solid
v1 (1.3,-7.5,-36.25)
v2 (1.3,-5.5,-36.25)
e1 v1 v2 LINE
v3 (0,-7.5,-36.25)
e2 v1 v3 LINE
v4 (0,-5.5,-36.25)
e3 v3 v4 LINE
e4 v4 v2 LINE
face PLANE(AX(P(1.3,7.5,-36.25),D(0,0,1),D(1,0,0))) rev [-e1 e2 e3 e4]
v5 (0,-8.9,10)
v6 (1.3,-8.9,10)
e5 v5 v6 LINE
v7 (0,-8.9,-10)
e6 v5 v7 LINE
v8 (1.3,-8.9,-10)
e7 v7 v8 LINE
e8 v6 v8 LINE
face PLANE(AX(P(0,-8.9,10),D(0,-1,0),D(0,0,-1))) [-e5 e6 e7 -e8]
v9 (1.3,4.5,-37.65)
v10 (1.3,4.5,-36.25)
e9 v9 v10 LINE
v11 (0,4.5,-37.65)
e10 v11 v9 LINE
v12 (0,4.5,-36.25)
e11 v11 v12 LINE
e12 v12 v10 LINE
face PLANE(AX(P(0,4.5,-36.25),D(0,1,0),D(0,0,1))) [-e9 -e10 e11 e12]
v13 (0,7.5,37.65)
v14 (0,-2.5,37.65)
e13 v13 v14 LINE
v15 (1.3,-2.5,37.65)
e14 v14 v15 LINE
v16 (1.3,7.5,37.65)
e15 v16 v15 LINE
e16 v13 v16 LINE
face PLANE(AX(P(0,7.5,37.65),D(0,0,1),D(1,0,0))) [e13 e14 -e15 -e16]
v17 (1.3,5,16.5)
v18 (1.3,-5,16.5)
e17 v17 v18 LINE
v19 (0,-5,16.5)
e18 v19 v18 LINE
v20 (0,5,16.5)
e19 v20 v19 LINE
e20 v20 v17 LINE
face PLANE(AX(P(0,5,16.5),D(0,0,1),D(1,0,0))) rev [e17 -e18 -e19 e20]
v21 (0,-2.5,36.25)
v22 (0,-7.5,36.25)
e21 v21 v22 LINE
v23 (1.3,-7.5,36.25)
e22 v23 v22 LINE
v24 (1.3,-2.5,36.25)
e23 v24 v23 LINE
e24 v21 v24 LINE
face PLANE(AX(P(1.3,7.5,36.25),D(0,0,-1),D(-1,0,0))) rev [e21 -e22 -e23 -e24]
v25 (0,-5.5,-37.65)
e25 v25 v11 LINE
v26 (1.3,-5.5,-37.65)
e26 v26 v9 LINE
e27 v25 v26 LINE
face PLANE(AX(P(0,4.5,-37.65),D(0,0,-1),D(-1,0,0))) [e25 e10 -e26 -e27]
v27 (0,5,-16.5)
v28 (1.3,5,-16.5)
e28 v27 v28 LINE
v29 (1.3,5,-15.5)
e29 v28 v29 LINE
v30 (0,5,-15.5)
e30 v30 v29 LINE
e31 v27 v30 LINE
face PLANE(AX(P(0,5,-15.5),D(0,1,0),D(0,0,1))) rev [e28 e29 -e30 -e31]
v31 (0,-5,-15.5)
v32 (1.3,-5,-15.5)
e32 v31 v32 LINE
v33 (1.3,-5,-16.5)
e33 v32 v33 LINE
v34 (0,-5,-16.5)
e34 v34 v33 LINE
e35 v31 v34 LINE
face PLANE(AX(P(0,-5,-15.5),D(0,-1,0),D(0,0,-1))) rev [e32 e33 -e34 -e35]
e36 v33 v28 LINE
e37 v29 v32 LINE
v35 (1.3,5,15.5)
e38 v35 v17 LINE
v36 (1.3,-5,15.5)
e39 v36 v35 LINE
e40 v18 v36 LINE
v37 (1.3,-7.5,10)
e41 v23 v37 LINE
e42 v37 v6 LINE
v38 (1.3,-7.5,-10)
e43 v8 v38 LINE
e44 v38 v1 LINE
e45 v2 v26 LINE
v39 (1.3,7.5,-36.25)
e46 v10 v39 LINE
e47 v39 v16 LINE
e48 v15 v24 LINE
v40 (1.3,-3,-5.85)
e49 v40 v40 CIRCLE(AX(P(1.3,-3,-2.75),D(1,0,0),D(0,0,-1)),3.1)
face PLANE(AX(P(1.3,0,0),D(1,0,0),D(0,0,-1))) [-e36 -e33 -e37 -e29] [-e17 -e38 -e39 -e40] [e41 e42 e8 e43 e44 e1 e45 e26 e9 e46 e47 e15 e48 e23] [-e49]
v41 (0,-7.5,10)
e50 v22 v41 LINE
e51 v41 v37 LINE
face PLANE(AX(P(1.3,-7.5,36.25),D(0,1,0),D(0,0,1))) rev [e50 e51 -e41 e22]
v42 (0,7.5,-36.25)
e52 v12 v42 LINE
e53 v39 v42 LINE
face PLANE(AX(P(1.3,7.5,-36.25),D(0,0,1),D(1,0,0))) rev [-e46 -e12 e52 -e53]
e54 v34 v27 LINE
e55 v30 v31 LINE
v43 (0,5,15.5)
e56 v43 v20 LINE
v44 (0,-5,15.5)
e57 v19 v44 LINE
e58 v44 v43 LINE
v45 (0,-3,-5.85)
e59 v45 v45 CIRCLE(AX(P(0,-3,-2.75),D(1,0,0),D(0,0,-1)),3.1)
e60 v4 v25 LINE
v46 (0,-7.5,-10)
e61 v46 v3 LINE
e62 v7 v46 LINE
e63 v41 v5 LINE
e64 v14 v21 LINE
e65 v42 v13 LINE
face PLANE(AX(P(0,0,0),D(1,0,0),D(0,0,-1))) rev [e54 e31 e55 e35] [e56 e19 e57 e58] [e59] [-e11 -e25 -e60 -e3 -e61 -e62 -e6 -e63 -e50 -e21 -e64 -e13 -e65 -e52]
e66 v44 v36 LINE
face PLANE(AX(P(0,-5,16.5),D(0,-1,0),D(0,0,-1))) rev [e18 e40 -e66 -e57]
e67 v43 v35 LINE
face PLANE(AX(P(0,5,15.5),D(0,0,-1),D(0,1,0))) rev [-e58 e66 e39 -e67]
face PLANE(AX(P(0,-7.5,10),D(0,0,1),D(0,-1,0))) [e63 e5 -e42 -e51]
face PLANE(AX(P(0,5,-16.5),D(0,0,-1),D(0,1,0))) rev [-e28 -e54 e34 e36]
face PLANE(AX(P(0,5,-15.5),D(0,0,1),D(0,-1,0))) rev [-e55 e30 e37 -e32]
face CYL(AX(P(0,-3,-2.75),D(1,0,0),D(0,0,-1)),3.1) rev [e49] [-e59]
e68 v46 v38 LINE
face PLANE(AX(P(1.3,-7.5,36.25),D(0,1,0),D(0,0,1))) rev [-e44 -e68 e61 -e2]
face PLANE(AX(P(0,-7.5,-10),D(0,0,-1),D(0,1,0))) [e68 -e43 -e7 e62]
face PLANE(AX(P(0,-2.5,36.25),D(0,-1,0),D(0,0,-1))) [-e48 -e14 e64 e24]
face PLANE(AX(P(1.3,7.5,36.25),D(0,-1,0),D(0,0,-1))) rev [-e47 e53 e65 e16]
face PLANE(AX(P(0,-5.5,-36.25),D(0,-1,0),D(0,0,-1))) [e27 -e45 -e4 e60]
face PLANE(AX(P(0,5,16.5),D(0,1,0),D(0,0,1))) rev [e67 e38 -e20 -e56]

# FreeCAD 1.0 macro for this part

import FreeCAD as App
import Part
import Sketcher
from FreeCAD import Vector

doc = App.newDocument("Part")
params = doc.addObject("Spreadsheet::Sheet", "Params")
for row, (alias, value) in enumerate([
    ("sketch1_width", "15 mm"),
    ("sketch1_height", "72.5 mm"),
    ("pad1_length", "1.3 mm"),
    ("sketch2_width", "10 mm"),
    ("sketch2_height", "20 mm"),
    ("sketch2_width2", "1.4 mm"),
    ("pad2_length", "1.3 mm"),
    ("sketch3_width", "10 mm"),
    ("sketch3_height", "1 mm"),
    ("sketch4_diameter", "6.2 mm"),
], start=1):
    params.set(f"A{row}", alias)
    params.set(f"B{row}", "=" + value)
    params.setAlias(f"B{row}", alias)

body = doc.addObject("PartDesign::Body", "Body")

sketch1 = body.newObject("Sketcher::SketchObject", "Sketch")
sketch1.AttachmentSupport = (doc.getObject("YZ_Plane"), [""])
sketch1.MapMode = "FlatFace"
sketch1.addGeometry(Part.LineSegment(Vector(8, 36, 0), Vector(-8, 36, 0)), False)
sketch1.addGeometry(Part.LineSegment(Vector(-8, 36, 0), Vector(-8, -36, 0)), False)
sketch1.addGeometry(Part.LineSegment(Vector(-8, -36, 0), Vector(8, -36, 0)), False)
sketch1.addGeometry(Part.LineSegment(Vector(8, -36, 0), Vector(8, 36, 0)), False)
sketch1.addConstraint(Sketcher.Constraint("Coincident", 0, 2, 1, 1))
sketch1.addConstraint(Sketcher.Constraint("Coincident", 1, 2, 2, 1))
sketch1.addConstraint(Sketcher.Constraint("Coincident", 2, 2, 3, 1))
sketch1.addConstraint(Sketcher.Constraint("Coincident", 3, 2, 0, 1))
sketch1.addConstraint(Sketcher.Constraint("Horizontal", 0))
sketch1.addConstraint(Sketcher.Constraint("Vertical", 1))
sketch1.addConstraint(Sketcher.Constraint("Horizontal", 2))
sketch1.addConstraint(Sketcher.Constraint("Vertical", 3))
sketch1.addConstraint(Sketcher.Constraint("Symmetric", 0, 2, 2, 2, -1, 1))
sketch1.addConstraint(Sketcher.Constraint("DistanceX", 0, 2, 0, 1, 15.0))
sketch1.addConstraint(Sketcher.Constraint("DistanceY", 1, 2, 1, 1, 72.5))
sketch1.setExpression("Constraints[9]", "Params.sketch1_width")
sketch1.setExpression("Constraints[10]", "Params.sketch1_height")
pad1 = body.newObject("PartDesign::Pad", "Pad")
pad1.Profile = sketch1
pad1.setExpression("Length", "Params.pad1_length")

sketch2 = body.newObject("Sketcher::SketchObject", "Sketch001")
sketch2.AttachmentSupport = (doc.getObject("YZ_Plane"), [""])
sketch2.MapMode = "FlatFace"
sketch2.AttachmentOffset = App.Placement(Vector(0, 0, 1.3), App.Rotation())
sketch2.addGeometry(Part.LineSegment(Vector(7.5, 37.6, 0), Vector(-2.5, 37.6, 0)), False)
sketch2.addGeometry(Part.LineSegment(Vector(-2.5, 37.6, 0), Vector(-2.5, 36.2, 0)), False)
sketch2.addGeometry(Part.LineSegment(Vector(-2.5, 36.2, 0), Vector(7.5, 36.2, 0)), False)
sketch2.addGeometry(Part.LineSegment(Vector(7.5, 36.2, 0), Vector(7.5, 37.6, 0)), False)
sketch2.addGeometry(Part.LineSegment(Vector(4.5, -36.2, 0), Vector(-5.5, -36.2, 0)), False)
sketch2.addGeometry(Part.LineSegment(Vector(-5.5, -36.2, 0), Vector(-5.5, -37.6, 0)), False)
sketch2.addGeometry(Part.LineSegment(Vector(-5.5, -37.6, 0), Vector(4.5, -37.6, 0)), False)
sketch2.addGeometry(Part.LineSegment(Vector(4.5, -37.6, 0), Vector(4.5, -36.2, 0)), False)
sketch2.addGeometry(Part.LineSegment(Vector(-7.5, 10, 0), Vector(-8.9, 10, 0)), False)
sketch2.addGeometry(Part.LineSegment(Vector(-8.9, 10, 0), Vector(-8.9, -10, 0)), False)
sketch2.addGeometry(Part.LineSegment(Vector(-8.9, -10, 0), Vector(-7.5, -10, 0)), False)
sketch2.addGeometry(Part.LineSegment(Vector(-7.5, -10, 0), Vector(-7.5, 10, 0)), False)
sketch2.addConstraint(Sketcher.Constraint("Coincident", 0, 2, 1, 1))
sketch2.addConstraint(Sketcher.Constraint("Coincident", 1, 2, 2, 1))
sketch2.addConstraint(Sketcher.Constraint("Coincident", 2, 2, 3, 1))
sketch2.addConstraint(Sketcher.Constraint("Coincident", 3, 2, 0, 1))
sketch2.addConstraint(Sketcher.Constraint("Coincident", 4, 2, 5, 1))
sketch2.addConstraint(Sketcher.Constraint("Coincident", 5, 2, 6, 1))
sketch2.addConstraint(Sketcher.Constraint("Coincident", 6, 2, 7, 1))
sketch2.addConstraint(Sketcher.Constraint("Coincident", 7, 2, 4, 1))
sketch2.addConstraint(Sketcher.Constraint("Coincident", 8, 2, 9, 1))
sketch2.addConstraint(Sketcher.Constraint("Coincident", 9, 2, 10, 1))
sketch2.addConstraint(Sketcher.Constraint("Coincident", 10, 2, 11, 1))
sketch2.addConstraint(Sketcher.Constraint("Coincident", 11, 2, 8, 1))
sketch2.addConstraint(Sketcher.Constraint("Horizontal", 0))
sketch2.addConstraint(Sketcher.Constraint("Vertical", 1))
sketch2.addConstraint(Sketcher.Constraint("Horizontal", 2))
sketch2.addConstraint(Sketcher.Constraint("Vertical", 3))
sketch2.addConstraint(Sketcher.Constraint("Horizontal", 4))
sketch2.addConstraint(Sketcher.Constraint("Vertical", 5))
sketch2.addConstraint(Sketcher.Constraint("Horizontal", 6))
sketch2.addConstraint(Sketcher.Constraint("Vertical", 7))
sketch2.addConstraint(Sketcher.Constraint("Horizontal", 8))
sketch2.addConstraint(Sketcher.Constraint("Vertical", 9))
sketch2.addConstraint(Sketcher.Constraint("Horizontal", 10))
sketch2.addConstraint(Sketcher.Constraint("Vertical", 11))
sketch2.addConstraint(Sketcher.Constraint("Equal", 2, 4))
sketch2.addConstraint(Sketcher.Constraint("Equal", 10, 1))
sketch2.addConstraint(Sketcher.Constraint("Equal", 3, 5))
sketch2.addConstraint(Sketcher.Constraint("DistanceX", 0, 2, 0, 1, 10.0))
sketch2.addConstraint(Sketcher.Constraint("DistanceY", 9, 2, 9, 1, 20.0))
sketch2.addConstraint(Sketcher.Constraint("DistanceX", 8, 2, 8, 1, 1.4))
sketch2.addConstraint(Sketcher.Constraint("DistanceY", -1, 1, 8, 2, 10.0))
sketch2.addConstraint(Sketcher.Constraint("DistanceX", 4, 2, 1, 2, 3.0))
sketch2.addConstraint(Sketcher.Constraint("DistanceX", 10, 2, 4, 2, 2.0))
sketch2.addConstraint(Sketcher.Constraint("DistanceX", 0, 2, -1, 1, 2.5))
sketch2.addConstraint(Sketcher.Constraint("DistanceY", 4, 2, 1, 2, 72.5))
sketch2.addConstraint(Sketcher.Constraint("DistanceY", -1, 1, 0, 2, 37.65))
sketch2.setExpression("Constraints[27]", "Params.sketch2_width")
sketch2.setExpression("Constraints[28]", "Params.sketch2_height")
sketch2.setExpression("Constraints[29]", "Params.sketch2_width2")
pad2 = body.newObject("PartDesign::Pad", "Pad001")
pad2.Profile = sketch2
pad2.setExpression("Length", "Params.pad2_length")
pad2.Reversed = True

sketch3 = body.newObject("Sketcher::SketchObject", "Sketch002")
sketch3.AttachmentSupport = (doc.getObject("YZ_Plane"), [""])
sketch3.MapMode = "FlatFace"
sketch3.AttachmentOffset = App.Placement(Vector(0, 0, 1.3), App.Rotation())
sketch3.addGeometry(Part.LineSegment(Vector(5, -15.5, 0), Vector(-5, -15.5, 0)), False)
sketch3.addGeometry(Part.LineSegment(Vector(-5, -15.5, 0), Vector(-5, -16.5, 0)), False)
sketch3.addGeometry(Part.LineSegment(Vector(-5, -16.5, 0), Vector(5, -16.5, 0)), False)
sketch3.addGeometry(Part.LineSegment(Vector(5, -16.5, 0), Vector(5, -15.5, 0)), False)
sketch3.addGeometry(Part.LineSegment(Vector(5, 16.5, 0), Vector(-5, 16.5, 0)), False)
sketch3.addGeometry(Part.LineSegment(Vector(-5, 16.5, 0), Vector(-5, 15.5, 0)), False)
sketch3.addGeometry(Part.LineSegment(Vector(-5, 15.5, 0), Vector(5, 15.5, 0)), False)
sketch3.addGeometry(Part.LineSegment(Vector(5, 15.5, 0), Vector(5, 16.5, 0)), False)
sketch3.addConstraint(Sketcher.Constraint("Coincident", 0, 2, 1, 1))
sketch3.addConstraint(Sketcher.Constraint("Coincident", 1, 2, 2, 1))
sketch3.addConstraint(Sketcher.Constraint("Coincident", 2, 2, 3, 1))
sketch3.addConstraint(Sketcher.Constraint("Coincident", 3, 2, 0, 1))
sketch3.addConstraint(Sketcher.Constraint("Coincident", 4, 2, 5, 1))
sketch3.addConstraint(Sketcher.Constraint("Coincident", 5, 2, 6, 1))
sketch3.addConstraint(Sketcher.Constraint("Coincident", 6, 2, 7, 1))
sketch3.addConstraint(Sketcher.Constraint("Coincident", 7, 2, 4, 1))
sketch3.addConstraint(Sketcher.Constraint("Horizontal", 0))
sketch3.addConstraint(Sketcher.Constraint("Vertical", 1))
sketch3.addConstraint(Sketcher.Constraint("Horizontal", 2))
sketch3.addConstraint(Sketcher.Constraint("Vertical", 3))
sketch3.addConstraint(Sketcher.Constraint("Horizontal", 4))
sketch3.addConstraint(Sketcher.Constraint("Vertical", 5))
sketch3.addConstraint(Sketcher.Constraint("Horizontal", 6))
sketch3.addConstraint(Sketcher.Constraint("Vertical", 7))
sketch3.addConstraint(Sketcher.Constraint("Symmetric", 2, 2, 4, 2, -1, 1))
sketch3.addConstraint(Sketcher.Constraint("Symmetric", 0, 2, 6, 2, -1, 1))
sketch3.addConstraint(Sketcher.Constraint("Vertical", 1, 2, 4, 2))
sketch3.addConstraint(Sketcher.Constraint("DistanceX", 0, 2, 0, 1, 10.0))
sketch3.addConstraint(Sketcher.Constraint("DistanceY", 1, 2, 1, 1, 1.0))
sketch3.addConstraint(Sketcher.Constraint("DistanceY", 0, 2, 4, 2, 32.0))
sketch3.setExpression("Constraints[19]", "Params.sketch3_width")
sketch3.setExpression("Constraints[20]", "Params.sketch3_height")
pocket1 = body.newObject("PartDesign::Pocket", "Pocket")
pocket1.Profile = sketch3
pocket1.Type = "ThroughAll"

sketch4 = body.newObject("Sketcher::SketchObject", "Sketch003")
sketch4.AttachmentSupport = (doc.getObject("YZ_Plane"), [""])
sketch4.MapMode = "FlatFace"
sketch4.AttachmentOffset = App.Placement(Vector(0, 0, 1.3), App.Rotation())
sketch4.addGeometry(Part.Circle(Vector(-3, -2.8, 0), Vector(0, 0, 1), 3.1), False)
sketch4.addConstraint(Sketcher.Constraint("Diameter", 0, 6.2))
sketch4.addConstraint(Sketcher.Constraint("DistanceX", 0, 3, -1, 1, 3.0))
sketch4.addConstraint(Sketcher.Constraint("DistanceY", 0, 3, -1, 1, 2.75))
sketch4.setExpression("Constraints[0]", "Params.sketch4_diameter")
pocket2 = body.newObject("PartDesign::Pocket", "Pocket001")
pocket2.Profile = sketch4
pocket2.Type = "ThroughAll"

doc.recompute()
